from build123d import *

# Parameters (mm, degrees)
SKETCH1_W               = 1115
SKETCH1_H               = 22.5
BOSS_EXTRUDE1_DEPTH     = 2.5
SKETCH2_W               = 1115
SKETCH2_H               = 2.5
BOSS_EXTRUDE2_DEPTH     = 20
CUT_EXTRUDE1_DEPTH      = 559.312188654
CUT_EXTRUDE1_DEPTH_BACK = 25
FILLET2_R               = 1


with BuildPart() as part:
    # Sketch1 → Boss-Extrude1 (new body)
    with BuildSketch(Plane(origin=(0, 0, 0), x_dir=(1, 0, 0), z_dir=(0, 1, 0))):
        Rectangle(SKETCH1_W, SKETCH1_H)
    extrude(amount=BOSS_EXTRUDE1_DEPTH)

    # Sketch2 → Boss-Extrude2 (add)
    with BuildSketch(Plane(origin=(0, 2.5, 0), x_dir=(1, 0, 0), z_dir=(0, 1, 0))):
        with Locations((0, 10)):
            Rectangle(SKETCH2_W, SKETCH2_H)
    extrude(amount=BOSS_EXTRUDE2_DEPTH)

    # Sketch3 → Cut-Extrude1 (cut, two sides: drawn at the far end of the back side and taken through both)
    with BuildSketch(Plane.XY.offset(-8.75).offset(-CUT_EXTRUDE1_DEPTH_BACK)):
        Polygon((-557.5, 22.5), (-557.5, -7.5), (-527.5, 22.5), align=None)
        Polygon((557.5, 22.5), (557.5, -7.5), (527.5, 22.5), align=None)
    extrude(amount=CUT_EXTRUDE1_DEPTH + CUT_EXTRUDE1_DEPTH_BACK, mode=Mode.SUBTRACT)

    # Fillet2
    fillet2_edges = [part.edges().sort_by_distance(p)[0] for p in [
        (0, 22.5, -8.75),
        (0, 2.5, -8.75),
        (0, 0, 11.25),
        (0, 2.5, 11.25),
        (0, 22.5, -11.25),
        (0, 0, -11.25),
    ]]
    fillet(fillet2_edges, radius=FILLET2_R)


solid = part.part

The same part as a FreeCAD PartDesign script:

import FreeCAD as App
import Part
import Sketcher
from FreeCAD import Vector
Q = App.Units.Quantity


def edges_at(feature, points):
    """Names of the edges that pass closest to the given points."""
    edges = feature.Shape.Edges
    near = lambda p: min(range(len(edges)), key=lambda i: edges[i].distToShape(Part.Vertex(*p))[0])
    return sorted({f"Edge{near(p) + 1}" for p in points})

doc = App.newDocument("Part")
params = doc.addObject("Spreadsheet::Sheet", "Params")
for row, (alias, value) in enumerate([
    ("sketch1_width", "1115 mm"),
    ("sketch1_height", "22.5 mm"),
    ("pad1_length", "2.5 mm"),
    ("sketch2_width", "1115 mm"),
    ("sketch2_height", "2.5 mm"),
    ("pad2_length", "20 mm"),
    ("sketch3_width", "30 mm"),
    ("fillet_radius", "1 mm"),
], start=1):
    params.set(f"A{row}", alias)
    params.set(f"B{row}", "=" + value)
    params.setAlias(f"B{row}", alias)

body = doc.addObject("PartDesign::Body", "Body")

# Sketch on XZ plane
sketch1 = body.newObject("Sketcher::SketchObject", "Sketch")
sketch1.AttachmentSupport = (doc.getObject("XZ_Plane"), [""])
sketch1.MapMode = "FlatFace"
sketch1.addGeometry(Part.LineSegment(Vector(-558, -11, 0), Vector(-558, 11, 0)), False)
sketch1.addGeometry(Part.LineSegment(Vector(-558, 11, 0), Vector(558, 11, 0)), False)
sketch1.addGeometry(Part.LineSegment(Vector(558, 11, 0), Vector(558, -11, 0)), False)
sketch1.addGeometry(Part.LineSegment(Vector(558, -11, 0), Vector(-558, -11, 0)), False)
sketch1.addConstraint(Sketcher.Constraint("Coincident", 0, 2, 1, 1))
sketch1.addConstraint(Sketcher.Constraint("Coincident", 1, 2, 2, 1))
sketch1.addConstraint(Sketcher.Constraint("Coincident", 2, 2, 3, 1))
sketch1.addConstraint(Sketcher.Constraint("Coincident", 3, 2, 0, 1))
sketch1.addConstraint(Sketcher.Constraint("Vertical", 0))
sketch1.addConstraint(Sketcher.Constraint("Horizontal", 1))
sketch1.addConstraint(Sketcher.Constraint("Vertical", 2))
sketch1.addConstraint(Sketcher.Constraint("Horizontal", 3))
sketch1.addConstraint(Sketcher.Constraint("Symmetric", 0, 2, 2, 2, -1, 1))
sketch1.addConstraint(Sketcher.Constraint("DistanceX", 1, 1, 1, 2, Q("1115 mm")))
sketch1.addConstraint(Sketcher.Constraint("DistanceY", 0, 1, 0, 2, Q("22.5 mm")))
sketch1.setExpression("Constraints[9]", "Params.sketch1_width")
sketch1.setExpression("Constraints[10]", "Params.sketch1_height")
pad1 = body.newObject("PartDesign::Pad", "Pad")
pad1.Profile = sketch1
pad1.setExpression("Length", "Params.pad1_length")
pad1.Reversed = True

# Sketch on XZ plane
sketch2 = body.newObject("Sketcher::SketchObject", "Sketch001")
sketch2.AttachmentSupport = (doc.getObject("XZ_Plane"), [""])
sketch2.MapMode = "FlatFace"
sketch2.AttachmentOffset = App.Placement(Vector(0, 0, -2.5), App.Rotation())
sketch2.addGeometry(Part.LineSegment(Vector(-557.5, -11.2, 0), Vector(-557.5, -8.8, 0)), False)
sketch2.addGeometry(Part.LineSegment(Vector(-557.5, -8.8, 0), Vector(557.5, -8.8, 0)), False)
sketch2.addGeometry(Part.LineSegment(Vector(557.5, -8.8, 0), Vector(557.5, -11.2, 0)), False)
sketch2.addGeometry(Part.LineSegment(Vector(557.5, -11.2, 0), Vector(-557.5, -11.2, 0)), False)
sketch2.addConstraint(Sketcher.Constraint("Coincident", 0, 2, 1, 1))
sketch2.addConstraint(Sketcher.Constraint("Coincident", 1, 2, 2, 1))
sketch2.addConstraint(Sketcher.Constraint("Coincident", 2, 2, 3, 1))
sketch2.addConstraint(Sketcher.Constraint("Coincident", 3, 2, 0, 1))
sketch2.addConstraint(Sketcher.Constraint("Vertical", 0))
sketch2.addConstraint(Sketcher.Constraint("Horizontal", 1))
sketch2.addConstraint(Sketcher.Constraint("Vertical", 2))
sketch2.addConstraint(Sketcher.Constraint("Horizontal", 3))
sketch2.addConstraint(Sketcher.Constraint("DistanceX", 1, 1, 1, 2, Q("1115 mm")))
sketch2.addConstraint(Sketcher.Constraint("DistanceY", 0, 1, 0, 2, Q("2.5 mm")))
sketch2.addConstraint(Sketcher.Constraint("DistanceX", 0, 2, -1, 1, Q("557.5 mm")))
sketch2.addConstraint(Sketcher.Constraint("DistanceY", 0, 2, -1, 1, Q("8.75 mm")))
sketch2.setExpression("Constraints[8]", "Params.sketch2_width")
sketch2.setExpression("Constraints[9]", "Params.sketch2_height")
pad2 = body.newObject("PartDesign::Pad", "Pad001")
pad2.Profile = sketch2
pad2.setExpression("Length", "Params.pad2_length")
pad2.Reversed = True

# Sketch on XY plane
sketch3 = body.newObject("Sketcher::SketchObject", "Sketch002")
sketch3.AttachmentSupport = (doc.getObject("XY_Plane"), [""])
sketch3.MapMode = "FlatFace"
sketch3.AttachmentOffset = App.Placement(Vector(0, 0, -8.75), App.Rotation())
sketch3.addGeometry(Part.LineSegment(Vector(-558, 22, 0), Vector(-558, -8, 0)), False)
sketch3.addGeometry(Part.LineSegment(Vector(-558, -8, 0), Vector(-528, 22, 0)), False)
sketch3.addGeometry(Part.LineSegment(Vector(-528, 22, 0), Vector(-558, 22, 0)), False)
sketch3.addGeometry(Part.LineSegment(Vector(558, -8, 0), Vector(558, 22, 0)), False)
sketch3.addGeometry(Part.LineSegment(Vector(558, 22, 0), Vector(528, 22, 0)), False)
sketch3.addGeometry(Part.LineSegment(Vector(528, 22, 0), Vector(558, -8, 0)), False)
sketch3.addConstraint(Sketcher.Constraint("Coincident", 0, 2, 1, 1))
sketch3.addConstraint(Sketcher.Constraint("Coincident", 1, 2, 2, 1))
sketch3.addConstraint(Sketcher.Constraint("Coincident", 2, 2, 0, 1))
sketch3.addConstraint(Sketcher.Constraint("Coincident", 3, 2, 4, 1))
sketch3.addConstraint(Sketcher.Constraint("Coincident", 4, 2, 5, 1))
sketch3.addConstraint(Sketcher.Constraint("Coincident", 5, 2, 3, 1))
sketch3.addConstraint(Sketcher.Constraint("Vertical", 0))
sketch3.addConstraint(Sketcher.Constraint("Horizontal", 2))
sketch3.addConstraint(Sketcher.Constraint("Vertical", 3))
sketch3.addConstraint(Sketcher.Constraint("Horizontal", 4))
sketch3.addConstraint(Sketcher.Constraint("Symmetric", 2, 2, 3, 2, -2))
sketch3.addConstraint(Sketcher.Constraint("Perpendicular", 1, 5))
sketch3.addConstraint(Sketcher.Constraint("Horizontal", 0, 2, 5, 2))
sketch3.addConstraint(Sketcher.Constraint("Equal", 2, 4))
sketch3.addConstraint(Sketcher.Constraint("DistanceX", 2, 2, 2, 1, Q("30 mm")))
sketch3.addConstraint(Sketcher.Constraint("DistanceX", 1, 2, 3, 2, Q("1085 mm")))
sketch3.addConstraint(Sketcher.Constraint("DistanceY", 0, 2, -1, 1, Q("7.5 mm")))
sketch3.setExpression("Constraints[14]", "Params.sketch3_width")
pocket1 = body.newObject("PartDesign::Pocket", "Pocket")
pocket1.Profile = sketch3
pocket1.Type = "ThroughAll"
pocket1.Midplane = True
doc.recompute()

fillet = body.newObject("PartDesign::Fillet", "Fillet")
fillet.Base = (pocket1, edges_at(pocket1, [
    (0, 22.5, -8.75),
    (0, 2.5, -8.75),
    (0, 0, 11.25),
    (0, 2.5, 11.25),
    (0, 22.5, -11.25),
    (0, 0, -11.25),
]))
fillet.setExpression("Radius", "Params.fillet_radius")

doc.recompute()
